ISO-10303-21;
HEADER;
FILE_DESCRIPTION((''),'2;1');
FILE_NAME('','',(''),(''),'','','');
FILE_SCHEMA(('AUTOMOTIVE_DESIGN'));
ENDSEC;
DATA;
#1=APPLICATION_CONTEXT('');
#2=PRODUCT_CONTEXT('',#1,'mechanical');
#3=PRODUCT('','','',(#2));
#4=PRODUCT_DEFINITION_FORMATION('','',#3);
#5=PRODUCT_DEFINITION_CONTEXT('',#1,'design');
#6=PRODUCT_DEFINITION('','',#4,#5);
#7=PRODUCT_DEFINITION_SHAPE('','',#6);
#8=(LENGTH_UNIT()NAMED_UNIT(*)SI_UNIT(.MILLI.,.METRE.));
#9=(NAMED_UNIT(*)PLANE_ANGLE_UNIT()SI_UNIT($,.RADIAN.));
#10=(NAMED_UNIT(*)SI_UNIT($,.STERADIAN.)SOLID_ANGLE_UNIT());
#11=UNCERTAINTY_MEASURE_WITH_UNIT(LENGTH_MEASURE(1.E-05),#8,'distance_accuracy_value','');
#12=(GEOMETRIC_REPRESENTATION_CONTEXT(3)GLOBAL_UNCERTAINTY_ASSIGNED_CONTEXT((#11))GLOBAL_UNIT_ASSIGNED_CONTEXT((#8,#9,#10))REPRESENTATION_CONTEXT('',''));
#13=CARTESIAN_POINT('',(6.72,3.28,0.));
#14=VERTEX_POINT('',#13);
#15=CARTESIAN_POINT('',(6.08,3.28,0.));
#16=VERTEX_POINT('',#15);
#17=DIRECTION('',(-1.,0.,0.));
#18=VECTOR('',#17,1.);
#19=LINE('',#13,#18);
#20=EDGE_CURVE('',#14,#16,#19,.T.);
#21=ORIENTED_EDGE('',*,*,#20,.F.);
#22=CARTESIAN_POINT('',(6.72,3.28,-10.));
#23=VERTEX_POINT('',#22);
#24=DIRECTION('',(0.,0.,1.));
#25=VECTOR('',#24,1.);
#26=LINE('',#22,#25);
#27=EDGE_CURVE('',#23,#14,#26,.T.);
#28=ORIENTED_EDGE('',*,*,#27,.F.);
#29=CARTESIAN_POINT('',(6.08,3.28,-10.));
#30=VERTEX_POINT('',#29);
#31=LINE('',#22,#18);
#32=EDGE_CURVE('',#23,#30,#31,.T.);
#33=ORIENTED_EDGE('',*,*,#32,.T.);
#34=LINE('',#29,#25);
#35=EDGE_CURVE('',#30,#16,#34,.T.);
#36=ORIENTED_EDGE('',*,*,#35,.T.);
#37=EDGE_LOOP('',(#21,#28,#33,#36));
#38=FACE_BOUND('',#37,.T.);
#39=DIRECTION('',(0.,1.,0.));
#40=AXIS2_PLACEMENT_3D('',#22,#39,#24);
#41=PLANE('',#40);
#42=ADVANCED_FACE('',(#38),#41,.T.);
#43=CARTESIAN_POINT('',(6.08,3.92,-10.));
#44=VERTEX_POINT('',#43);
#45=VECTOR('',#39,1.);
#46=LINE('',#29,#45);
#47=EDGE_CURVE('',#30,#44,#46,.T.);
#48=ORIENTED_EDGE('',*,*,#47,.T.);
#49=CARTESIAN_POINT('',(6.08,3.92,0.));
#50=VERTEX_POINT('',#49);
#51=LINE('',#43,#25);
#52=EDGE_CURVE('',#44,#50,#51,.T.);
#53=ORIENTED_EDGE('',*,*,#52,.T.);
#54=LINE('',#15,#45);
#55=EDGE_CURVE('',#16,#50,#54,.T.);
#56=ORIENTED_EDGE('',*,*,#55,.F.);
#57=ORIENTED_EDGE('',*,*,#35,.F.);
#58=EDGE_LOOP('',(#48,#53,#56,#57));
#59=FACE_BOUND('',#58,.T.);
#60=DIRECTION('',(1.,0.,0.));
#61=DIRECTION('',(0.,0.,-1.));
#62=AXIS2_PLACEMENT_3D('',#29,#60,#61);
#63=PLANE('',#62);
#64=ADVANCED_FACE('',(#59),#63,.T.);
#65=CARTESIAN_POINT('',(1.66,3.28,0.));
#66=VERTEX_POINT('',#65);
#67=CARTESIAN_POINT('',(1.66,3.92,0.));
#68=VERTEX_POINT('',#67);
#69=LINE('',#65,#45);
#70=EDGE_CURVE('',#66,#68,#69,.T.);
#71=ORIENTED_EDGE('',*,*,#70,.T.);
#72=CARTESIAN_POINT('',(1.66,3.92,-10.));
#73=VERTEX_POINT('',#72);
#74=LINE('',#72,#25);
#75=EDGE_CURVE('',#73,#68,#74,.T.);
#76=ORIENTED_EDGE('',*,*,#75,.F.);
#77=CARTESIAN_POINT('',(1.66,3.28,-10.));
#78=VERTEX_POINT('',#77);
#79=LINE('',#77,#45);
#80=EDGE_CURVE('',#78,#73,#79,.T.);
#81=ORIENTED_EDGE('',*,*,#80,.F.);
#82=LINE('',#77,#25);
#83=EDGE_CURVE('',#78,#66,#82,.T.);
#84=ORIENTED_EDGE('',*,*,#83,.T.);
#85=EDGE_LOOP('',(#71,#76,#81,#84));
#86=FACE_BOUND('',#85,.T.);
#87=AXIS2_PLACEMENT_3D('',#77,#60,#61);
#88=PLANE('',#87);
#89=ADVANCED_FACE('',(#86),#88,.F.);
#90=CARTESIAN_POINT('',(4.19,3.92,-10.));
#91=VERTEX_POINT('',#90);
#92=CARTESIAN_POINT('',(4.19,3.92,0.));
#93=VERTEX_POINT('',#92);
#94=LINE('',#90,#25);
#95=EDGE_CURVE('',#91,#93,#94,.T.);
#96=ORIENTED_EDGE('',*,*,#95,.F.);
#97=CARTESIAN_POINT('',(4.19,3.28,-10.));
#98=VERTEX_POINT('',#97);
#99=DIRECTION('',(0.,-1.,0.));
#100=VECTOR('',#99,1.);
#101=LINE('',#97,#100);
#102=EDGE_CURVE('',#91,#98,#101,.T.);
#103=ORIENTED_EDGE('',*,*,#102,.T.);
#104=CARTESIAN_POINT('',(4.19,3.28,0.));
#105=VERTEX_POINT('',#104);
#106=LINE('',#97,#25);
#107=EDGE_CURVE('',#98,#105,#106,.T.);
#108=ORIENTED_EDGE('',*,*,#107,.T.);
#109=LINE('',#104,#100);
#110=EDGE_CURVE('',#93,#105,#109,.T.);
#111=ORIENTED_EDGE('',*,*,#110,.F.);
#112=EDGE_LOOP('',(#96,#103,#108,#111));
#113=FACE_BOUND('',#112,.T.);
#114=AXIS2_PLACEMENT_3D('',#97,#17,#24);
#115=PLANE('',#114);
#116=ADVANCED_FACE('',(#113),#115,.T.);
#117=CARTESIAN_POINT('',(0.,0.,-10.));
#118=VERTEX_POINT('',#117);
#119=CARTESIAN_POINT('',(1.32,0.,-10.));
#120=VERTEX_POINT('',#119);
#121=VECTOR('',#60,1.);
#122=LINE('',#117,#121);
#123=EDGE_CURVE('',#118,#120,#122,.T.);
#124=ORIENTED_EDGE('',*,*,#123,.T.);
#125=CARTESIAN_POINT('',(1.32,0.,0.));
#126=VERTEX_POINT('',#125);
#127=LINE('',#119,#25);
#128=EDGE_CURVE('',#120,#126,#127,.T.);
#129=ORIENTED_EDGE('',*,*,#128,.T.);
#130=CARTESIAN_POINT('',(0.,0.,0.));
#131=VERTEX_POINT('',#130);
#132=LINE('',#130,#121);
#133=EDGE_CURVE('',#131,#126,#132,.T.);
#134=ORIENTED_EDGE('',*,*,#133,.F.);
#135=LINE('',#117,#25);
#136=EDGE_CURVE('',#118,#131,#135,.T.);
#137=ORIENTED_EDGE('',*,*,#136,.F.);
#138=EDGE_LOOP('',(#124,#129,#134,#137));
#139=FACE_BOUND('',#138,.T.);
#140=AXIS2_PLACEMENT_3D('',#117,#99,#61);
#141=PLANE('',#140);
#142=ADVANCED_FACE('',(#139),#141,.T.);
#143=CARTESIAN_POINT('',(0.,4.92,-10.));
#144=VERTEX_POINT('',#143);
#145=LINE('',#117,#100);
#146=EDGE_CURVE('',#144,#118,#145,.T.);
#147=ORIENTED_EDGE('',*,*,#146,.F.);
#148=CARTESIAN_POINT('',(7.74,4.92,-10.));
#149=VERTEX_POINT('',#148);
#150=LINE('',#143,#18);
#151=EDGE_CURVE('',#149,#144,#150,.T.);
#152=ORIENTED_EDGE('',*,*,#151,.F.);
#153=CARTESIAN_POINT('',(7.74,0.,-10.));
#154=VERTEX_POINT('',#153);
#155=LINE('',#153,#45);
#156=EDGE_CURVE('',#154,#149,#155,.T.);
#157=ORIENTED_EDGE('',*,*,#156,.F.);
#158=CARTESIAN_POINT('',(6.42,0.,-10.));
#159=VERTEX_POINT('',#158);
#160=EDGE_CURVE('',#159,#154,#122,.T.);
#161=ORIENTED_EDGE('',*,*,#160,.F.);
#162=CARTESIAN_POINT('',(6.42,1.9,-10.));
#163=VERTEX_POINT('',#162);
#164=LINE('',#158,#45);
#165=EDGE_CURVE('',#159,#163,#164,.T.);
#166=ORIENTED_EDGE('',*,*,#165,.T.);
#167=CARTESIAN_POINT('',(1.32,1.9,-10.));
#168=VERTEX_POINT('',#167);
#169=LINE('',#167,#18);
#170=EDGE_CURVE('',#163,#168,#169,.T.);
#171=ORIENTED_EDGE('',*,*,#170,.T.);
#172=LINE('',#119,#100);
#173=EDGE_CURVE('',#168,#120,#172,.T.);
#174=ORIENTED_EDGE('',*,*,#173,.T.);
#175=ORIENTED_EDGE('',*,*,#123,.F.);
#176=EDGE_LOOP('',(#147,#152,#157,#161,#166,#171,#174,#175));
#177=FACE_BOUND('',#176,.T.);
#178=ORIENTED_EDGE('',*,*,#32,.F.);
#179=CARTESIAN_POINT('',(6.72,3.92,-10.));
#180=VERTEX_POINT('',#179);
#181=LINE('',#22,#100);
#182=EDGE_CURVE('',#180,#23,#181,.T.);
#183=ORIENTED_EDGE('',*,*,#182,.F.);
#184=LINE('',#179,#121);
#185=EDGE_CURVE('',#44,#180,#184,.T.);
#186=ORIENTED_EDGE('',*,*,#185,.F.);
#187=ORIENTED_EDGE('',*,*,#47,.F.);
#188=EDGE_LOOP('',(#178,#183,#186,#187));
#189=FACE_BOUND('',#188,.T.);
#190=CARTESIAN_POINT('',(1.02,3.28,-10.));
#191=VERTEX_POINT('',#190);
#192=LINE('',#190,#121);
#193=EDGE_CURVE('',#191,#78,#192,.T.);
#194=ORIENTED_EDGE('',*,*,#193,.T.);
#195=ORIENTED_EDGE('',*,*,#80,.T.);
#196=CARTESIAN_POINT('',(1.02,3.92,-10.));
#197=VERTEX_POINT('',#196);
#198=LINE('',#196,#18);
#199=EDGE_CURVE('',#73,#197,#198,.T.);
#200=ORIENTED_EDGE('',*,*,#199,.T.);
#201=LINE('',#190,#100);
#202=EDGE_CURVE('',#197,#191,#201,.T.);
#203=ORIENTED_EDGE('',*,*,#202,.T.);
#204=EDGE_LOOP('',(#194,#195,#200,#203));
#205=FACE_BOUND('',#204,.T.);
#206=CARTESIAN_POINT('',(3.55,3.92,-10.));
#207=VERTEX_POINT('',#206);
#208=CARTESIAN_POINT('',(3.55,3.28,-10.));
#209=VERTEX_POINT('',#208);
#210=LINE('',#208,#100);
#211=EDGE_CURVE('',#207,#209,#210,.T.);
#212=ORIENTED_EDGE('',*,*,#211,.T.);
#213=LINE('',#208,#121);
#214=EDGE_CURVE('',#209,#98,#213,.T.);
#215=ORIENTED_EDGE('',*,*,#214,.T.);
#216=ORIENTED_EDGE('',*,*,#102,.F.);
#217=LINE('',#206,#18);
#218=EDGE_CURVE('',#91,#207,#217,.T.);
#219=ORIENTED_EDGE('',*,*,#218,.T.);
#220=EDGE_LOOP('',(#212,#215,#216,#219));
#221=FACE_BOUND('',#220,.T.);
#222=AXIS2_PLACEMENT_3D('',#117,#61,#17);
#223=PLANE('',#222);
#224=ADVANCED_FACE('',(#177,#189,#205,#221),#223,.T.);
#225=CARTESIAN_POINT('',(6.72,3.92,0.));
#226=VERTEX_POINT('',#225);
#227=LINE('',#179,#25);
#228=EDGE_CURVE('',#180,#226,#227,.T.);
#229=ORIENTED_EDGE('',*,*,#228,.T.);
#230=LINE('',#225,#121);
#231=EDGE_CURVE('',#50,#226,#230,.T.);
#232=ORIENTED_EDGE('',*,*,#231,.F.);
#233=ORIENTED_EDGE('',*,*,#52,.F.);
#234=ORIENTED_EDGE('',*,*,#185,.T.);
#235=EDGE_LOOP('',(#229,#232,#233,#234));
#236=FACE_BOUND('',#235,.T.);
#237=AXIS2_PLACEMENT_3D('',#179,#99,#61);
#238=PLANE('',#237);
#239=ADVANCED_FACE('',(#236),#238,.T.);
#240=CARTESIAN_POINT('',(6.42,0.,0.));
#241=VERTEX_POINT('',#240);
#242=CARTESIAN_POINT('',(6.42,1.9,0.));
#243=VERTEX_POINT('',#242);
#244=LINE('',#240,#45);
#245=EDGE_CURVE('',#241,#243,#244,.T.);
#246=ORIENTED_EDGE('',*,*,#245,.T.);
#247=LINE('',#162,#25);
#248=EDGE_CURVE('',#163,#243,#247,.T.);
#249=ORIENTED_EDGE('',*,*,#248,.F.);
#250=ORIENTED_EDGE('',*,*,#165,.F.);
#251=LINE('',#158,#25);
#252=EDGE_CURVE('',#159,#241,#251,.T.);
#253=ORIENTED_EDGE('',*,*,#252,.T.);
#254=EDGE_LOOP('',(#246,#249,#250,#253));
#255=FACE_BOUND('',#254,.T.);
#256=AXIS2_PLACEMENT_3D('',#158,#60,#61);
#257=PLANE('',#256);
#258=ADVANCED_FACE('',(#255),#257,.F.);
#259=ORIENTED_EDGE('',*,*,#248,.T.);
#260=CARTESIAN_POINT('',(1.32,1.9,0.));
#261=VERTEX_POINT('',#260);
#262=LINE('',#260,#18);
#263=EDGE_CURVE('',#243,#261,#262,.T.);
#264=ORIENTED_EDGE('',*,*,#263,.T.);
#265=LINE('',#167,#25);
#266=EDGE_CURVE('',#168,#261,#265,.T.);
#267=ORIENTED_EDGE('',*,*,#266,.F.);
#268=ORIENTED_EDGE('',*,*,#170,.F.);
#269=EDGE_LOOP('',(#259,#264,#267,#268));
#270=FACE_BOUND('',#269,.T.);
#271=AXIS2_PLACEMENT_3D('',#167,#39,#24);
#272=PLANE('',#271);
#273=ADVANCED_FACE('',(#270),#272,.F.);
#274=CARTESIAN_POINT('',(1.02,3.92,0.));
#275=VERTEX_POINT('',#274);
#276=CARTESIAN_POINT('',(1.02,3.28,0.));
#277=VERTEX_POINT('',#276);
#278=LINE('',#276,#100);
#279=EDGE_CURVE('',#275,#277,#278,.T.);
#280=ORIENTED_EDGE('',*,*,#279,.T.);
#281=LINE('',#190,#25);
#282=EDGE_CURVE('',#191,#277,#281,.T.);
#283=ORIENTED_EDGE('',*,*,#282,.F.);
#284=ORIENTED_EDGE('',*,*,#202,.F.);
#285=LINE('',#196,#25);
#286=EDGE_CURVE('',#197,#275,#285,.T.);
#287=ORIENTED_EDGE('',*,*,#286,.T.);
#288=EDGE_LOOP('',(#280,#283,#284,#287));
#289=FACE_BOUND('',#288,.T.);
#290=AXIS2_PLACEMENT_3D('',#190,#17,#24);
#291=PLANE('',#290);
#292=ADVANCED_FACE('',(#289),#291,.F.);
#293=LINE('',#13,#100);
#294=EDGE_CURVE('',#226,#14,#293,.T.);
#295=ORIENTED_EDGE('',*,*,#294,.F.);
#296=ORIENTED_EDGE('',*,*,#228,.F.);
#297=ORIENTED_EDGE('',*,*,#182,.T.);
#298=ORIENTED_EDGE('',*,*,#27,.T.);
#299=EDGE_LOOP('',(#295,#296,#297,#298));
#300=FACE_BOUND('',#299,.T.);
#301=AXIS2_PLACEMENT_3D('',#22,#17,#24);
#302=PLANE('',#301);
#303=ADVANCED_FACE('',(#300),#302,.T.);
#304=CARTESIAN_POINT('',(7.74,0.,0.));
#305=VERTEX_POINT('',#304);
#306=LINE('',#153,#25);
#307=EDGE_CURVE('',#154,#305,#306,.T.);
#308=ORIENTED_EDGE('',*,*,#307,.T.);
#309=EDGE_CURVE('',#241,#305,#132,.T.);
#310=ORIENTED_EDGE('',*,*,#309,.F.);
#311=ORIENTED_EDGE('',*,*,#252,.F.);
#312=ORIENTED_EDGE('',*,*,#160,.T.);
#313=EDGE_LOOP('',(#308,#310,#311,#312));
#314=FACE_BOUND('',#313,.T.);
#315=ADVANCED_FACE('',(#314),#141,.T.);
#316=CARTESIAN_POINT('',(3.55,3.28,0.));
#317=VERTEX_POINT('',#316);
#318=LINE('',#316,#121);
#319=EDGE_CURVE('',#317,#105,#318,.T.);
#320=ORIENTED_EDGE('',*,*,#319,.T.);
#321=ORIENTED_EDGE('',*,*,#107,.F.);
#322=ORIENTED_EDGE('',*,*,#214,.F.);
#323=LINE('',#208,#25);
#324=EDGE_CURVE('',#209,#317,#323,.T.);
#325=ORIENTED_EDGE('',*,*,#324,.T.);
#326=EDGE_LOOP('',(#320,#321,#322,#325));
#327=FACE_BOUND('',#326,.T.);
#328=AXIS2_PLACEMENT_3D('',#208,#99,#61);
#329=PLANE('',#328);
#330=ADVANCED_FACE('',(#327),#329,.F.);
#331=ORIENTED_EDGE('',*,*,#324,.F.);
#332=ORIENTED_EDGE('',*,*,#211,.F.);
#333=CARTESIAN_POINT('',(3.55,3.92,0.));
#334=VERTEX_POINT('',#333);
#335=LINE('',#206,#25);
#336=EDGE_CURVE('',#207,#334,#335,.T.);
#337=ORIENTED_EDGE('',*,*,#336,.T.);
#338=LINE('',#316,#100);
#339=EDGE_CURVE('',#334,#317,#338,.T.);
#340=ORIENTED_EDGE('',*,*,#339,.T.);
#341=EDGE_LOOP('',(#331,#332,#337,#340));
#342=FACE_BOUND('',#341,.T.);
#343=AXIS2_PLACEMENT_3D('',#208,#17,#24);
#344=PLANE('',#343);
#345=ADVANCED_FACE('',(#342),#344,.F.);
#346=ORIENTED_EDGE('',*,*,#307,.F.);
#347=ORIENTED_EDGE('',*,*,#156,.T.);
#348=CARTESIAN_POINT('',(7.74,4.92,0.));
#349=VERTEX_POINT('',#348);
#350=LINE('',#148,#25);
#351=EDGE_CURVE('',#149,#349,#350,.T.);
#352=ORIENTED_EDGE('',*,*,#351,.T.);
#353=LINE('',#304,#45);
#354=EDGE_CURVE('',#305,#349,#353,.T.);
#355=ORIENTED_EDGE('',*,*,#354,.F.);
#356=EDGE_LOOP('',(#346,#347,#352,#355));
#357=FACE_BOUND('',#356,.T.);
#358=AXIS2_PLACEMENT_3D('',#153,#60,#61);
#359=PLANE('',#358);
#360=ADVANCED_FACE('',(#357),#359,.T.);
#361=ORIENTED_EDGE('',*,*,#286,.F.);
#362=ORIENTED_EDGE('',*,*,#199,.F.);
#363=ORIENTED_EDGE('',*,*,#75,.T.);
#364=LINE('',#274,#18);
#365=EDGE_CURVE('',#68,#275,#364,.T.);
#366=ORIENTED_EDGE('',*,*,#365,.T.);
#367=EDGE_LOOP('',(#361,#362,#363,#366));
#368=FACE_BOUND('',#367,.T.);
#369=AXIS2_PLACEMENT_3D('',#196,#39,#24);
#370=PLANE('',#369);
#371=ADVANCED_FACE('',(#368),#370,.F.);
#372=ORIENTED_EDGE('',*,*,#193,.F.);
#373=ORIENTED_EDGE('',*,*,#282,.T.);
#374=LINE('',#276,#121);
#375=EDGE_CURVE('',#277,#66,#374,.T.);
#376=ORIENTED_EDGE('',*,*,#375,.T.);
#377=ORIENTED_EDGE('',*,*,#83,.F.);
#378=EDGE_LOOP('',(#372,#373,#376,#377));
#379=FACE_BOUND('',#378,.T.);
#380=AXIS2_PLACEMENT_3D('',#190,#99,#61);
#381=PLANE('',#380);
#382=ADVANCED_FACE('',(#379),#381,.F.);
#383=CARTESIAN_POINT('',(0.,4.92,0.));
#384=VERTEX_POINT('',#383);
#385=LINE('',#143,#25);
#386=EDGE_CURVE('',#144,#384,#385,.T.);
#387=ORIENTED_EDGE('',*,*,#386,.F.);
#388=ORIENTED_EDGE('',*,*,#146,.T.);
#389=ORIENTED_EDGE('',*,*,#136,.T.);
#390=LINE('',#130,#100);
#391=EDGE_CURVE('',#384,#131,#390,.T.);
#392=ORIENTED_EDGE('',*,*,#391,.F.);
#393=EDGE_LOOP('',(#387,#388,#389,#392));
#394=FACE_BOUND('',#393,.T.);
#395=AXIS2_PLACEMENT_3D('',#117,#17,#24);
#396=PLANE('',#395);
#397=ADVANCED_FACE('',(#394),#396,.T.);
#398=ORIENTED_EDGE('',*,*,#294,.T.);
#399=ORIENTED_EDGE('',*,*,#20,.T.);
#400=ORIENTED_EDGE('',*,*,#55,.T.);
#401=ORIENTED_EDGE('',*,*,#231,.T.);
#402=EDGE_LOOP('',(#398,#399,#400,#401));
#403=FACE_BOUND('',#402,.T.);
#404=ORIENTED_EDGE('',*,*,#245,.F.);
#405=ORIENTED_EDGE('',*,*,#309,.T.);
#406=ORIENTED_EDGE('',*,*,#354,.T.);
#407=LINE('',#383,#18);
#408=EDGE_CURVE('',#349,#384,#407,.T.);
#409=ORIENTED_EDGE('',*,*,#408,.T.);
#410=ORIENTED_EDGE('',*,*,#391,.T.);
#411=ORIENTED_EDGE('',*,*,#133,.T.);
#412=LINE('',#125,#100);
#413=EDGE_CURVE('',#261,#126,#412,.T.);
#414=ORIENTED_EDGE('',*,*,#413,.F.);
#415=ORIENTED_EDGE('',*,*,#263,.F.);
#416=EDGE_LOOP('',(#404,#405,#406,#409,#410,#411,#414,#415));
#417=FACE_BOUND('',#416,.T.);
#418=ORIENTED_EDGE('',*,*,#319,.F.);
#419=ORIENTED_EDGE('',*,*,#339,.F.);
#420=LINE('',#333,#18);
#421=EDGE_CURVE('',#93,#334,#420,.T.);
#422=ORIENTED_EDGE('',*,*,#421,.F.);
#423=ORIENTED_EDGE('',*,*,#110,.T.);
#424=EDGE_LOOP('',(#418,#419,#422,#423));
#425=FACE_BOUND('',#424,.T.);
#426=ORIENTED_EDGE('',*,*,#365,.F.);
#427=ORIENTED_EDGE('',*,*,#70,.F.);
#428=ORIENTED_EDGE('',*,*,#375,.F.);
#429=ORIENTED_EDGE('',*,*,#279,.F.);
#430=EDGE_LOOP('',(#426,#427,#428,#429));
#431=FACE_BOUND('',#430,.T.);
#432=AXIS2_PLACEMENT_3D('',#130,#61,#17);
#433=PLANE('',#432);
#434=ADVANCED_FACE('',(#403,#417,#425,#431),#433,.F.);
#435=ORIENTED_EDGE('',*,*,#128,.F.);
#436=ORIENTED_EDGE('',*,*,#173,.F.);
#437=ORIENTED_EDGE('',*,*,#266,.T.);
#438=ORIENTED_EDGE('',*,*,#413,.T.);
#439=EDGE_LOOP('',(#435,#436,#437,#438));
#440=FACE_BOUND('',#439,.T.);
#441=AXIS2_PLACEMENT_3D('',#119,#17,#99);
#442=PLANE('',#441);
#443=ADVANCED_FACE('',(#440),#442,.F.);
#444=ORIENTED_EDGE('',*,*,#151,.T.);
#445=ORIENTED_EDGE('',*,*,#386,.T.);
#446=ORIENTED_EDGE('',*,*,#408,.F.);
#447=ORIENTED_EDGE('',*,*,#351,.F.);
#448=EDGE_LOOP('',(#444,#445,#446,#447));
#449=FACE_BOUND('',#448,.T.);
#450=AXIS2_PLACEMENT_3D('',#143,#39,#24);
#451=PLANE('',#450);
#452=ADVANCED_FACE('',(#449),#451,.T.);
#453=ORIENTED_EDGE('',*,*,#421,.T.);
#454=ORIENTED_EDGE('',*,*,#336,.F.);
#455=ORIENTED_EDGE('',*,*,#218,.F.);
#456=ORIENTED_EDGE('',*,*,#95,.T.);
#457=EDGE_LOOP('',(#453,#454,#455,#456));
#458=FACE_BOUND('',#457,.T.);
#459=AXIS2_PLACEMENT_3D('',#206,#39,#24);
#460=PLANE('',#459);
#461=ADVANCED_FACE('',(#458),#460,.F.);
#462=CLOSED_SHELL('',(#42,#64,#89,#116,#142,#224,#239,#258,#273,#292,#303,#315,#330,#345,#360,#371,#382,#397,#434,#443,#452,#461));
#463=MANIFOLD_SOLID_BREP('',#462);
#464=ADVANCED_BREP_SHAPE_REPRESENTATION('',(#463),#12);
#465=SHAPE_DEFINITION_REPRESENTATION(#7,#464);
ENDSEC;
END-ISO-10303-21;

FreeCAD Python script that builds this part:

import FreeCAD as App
import Part
import Sketcher
from FreeCAD import Vector
Q = App.Units.Quantity

doc = App.newDocument("Part")
body = doc.addObject("PartDesign::Body", "Body")

sketch1 = doc.addObject("Sketcher::SketchObject", "Sketch")
body.addObject(sketch1)
sketch1.AttachmentSupport = (doc.XY_Plane, [""])
sketch1.MapMode = "FlatFace"
sketch1.addGeometry([
    Part.LineSegment(Vector(0, 4.92, 0), Vector(0, 0, 0)),
    Part.LineSegment(Vector(0, 0, 0), Vector(7.74, 0, 0)),
    Part.LineSegment(Vector(7.74, 0, 0), Vector(7.74, 4.92, 0)),
    Part.LineSegment(Vector(7.74, 4.92, 0), Vector(0, 4.92, 0)),
], False)
sketch1.addConstraint([
    Sketcher.Constraint("Coincident", 0, 2, 1, 1),
    Sketcher.Constraint("Coincident", 1, 2, 2, 1),
    Sketcher.Constraint("Coincident", 2, 2, 3, 1),
    Sketcher.Constraint("Coincident", 3, 2, 0, 1),
    Sketcher.Constraint("Vertical", 0),
    Sketcher.Constraint("Horizontal", 1),
    Sketcher.Constraint("Vertical", 2),
    Sketcher.Constraint("Horizontal", 3),
    Sketcher.Constraint("Coincident", 0, 2, -1, 1),
    Sketcher.Constraint("DistanceX", 1, 1, 1, 2, Q("7.74 mm")),
    Sketcher.Constraint("DistanceY", 0, 2, 0, 1, Q("4.92 mm")),
])
pad1 = doc.addObject("PartDesign::Pad", "Pad")
body.addObject(pad1)
pad1.Profile = sketch1
pad1.Length = 10
pad1.Reversed = True

sketch2 = doc.addObject("Sketcher::SketchObject", "Sketch001")
body.addObject(sketch2)
sketch2.AttachmentSupport = (doc.XY_Plane, [""])
sketch2.MapMode = "FlatFace"
sketch2.addGeometry([
    Part.LineSegment(Vector(1.32, 1.9, 0), Vector(1.32, 0, 0)),
    Part.LineSegment(Vector(1.32, 0, 0), Vector(6.42, 0, 0)),
    Part.LineSegment(Vector(6.42, 0, 0), Vector(6.42, 1.9, 0)),
    Part.LineSegment(Vector(6.42, 1.9, 0), Vector(1.32, 1.9, 0)),
], False)
sketch2.addConstraint([
    Sketcher.Constraint("Coincident", 0, 2, 1, 1),
    Sketcher.Constraint("Coincident", 1, 2, 2, 1),
    Sketcher.Constraint("Coincident", 2, 2, 3, 1),
    Sketcher.Constraint("Coincident", 3, 2, 0, 1),
    Sketcher.Constraint("Vertical", 0),
    Sketcher.Constraint("Horizontal", 1),
    Sketcher.Constraint("Vertical", 2),
    Sketcher.Constraint("Horizontal", 3),
    Sketcher.Constraint("PointOnObject", 0, 2, -1),
    Sketcher.Constraint("DistanceX", 1, 1, 1, 2, Q("5.1 mm")),
    Sketcher.Constraint("DistanceY", 0, 2, 0, 1, Q("1.9 mm")),
    Sketcher.Constraint("DistanceX", -1, 1, 0, 2, Q("1.32 mm")),
])
pocket1 = doc.addObject("PartDesign::Pocket", "Pocket")
body.addObject(pocket1)
pocket1.Profile = sketch2
pocket1.Type = "ThroughAll"

sketch3 = doc.addObject("Sketcher::SketchObject", "Sketch002")
body.addObject(sketch3)
sketch3.AttachmentSupport = (doc.XY_Plane, [""])
sketch3.MapMode = "FlatFace"
sketch3.addGeometry([
    Part.LineSegment(Vector(3.55, 3.92, 0), Vector(3.55, 3.28, 0)),
    Part.LineSegment(Vector(3.55, 3.28, 0), Vector(3.87, 3.28, 0)),
    Part.LineSegment(Vector(3.87, 3.28, 0), Vector(3.87, 3.92, 0)),
    Part.LineSegment(Vector(3.87, 3.92, 0), Vector(3.55, 3.92, 0)),
    Part.LineSegment(Vector(1.02, 3.92, 0), Vector(1.02, 3.28, 0)),
    Part.LineSegment(Vector(1.02, 3.28, 0), Vector(1.66, 3.28, 0)),
    Part.LineSegment(Vector(1.66, 3.28, 0), Vector(1.66, 3.92, 0)),
    Part.LineSegment(Vector(1.66, 3.92, 0), Vector(1.02, 3.92, 0)),
], False)
sketch3.addConstraint([
    Sketcher.Constraint("Coincident", 0, 2, 1, 1),
    Sketcher.Constraint("Coincident", 1, 2, 2, 1),
    Sketcher.Constraint("Coincident", 2, 2, 3, 1),
    Sketcher.Constraint("Coincident", 3, 2, 0, 1),
    Sketcher.Constraint("Coincident", 4, 2, 5, 1),
    Sketcher.Constraint("Coincident", 5, 2, 6, 1),
    Sketcher.Constraint("Coincident", 6, 2, 7, 1),
    Sketcher.Constraint("Coincident", 7, 2, 4, 1),
    Sketcher.Constraint("Vertical", 0),
    Sketcher.Constraint("Horizontal", 1),
    Sketcher.Constraint("Vertical", 2),
    Sketcher.Constraint("Horizontal", 3),
    Sketcher.Constraint("Vertical", 4),
    Sketcher.Constraint("Horizontal", 5),
    Sketcher.Constraint("Vertical", 6),
    Sketcher.Constraint("Horizontal", 7),
    Sketcher.Constraint("Horizontal", 1, 2, 4, 2),
    Sketcher.Constraint("Horizontal", 3, 2, 6, 2),
    Sketcher.Constraint("Equal", 7, 0),
    Sketcher.Constraint("DistanceX", 1, 1, 1, 2, Q("0.32 mm")),
    Sketcher.Constraint("DistanceX", 5, 1, 5, 2, Q("0.64 mm")),
    Sketcher.Constraint("DistanceX", -1, 1, 0, 2, Q("3.55 mm")),
    Sketcher.Constraint("DistanceY", -1, 1, 0, 2, Q("3.28 mm")),
    Sketcher.Constraint("DistanceX", -1, 1, 4, 2, Q("1.02 mm")),
])
pocket2 = doc.addObject("PartDesign::Pocket", "Pocket001")
body.addObject(pocket2)
pocket2.Profile = sketch3
pocket2.Type = "ThroughAll"
doc.recompute()

datumplane = doc.addObject("PartDesign::Plane", "DatumPlane")
body.addObject(datumplane)
datumplane.AttachmentSupport = (doc.YZ_Plane, [""])
datumplane.MapMode = "FlatFace"
datumplane.AttachmentOffset = App.Placement(Vector(0, 0, 3.87), App.Rotation())
mirrored = doc.addObject("PartDesign::Mirrored", "Mirrored")
body.addObject(mirrored)
mirrored.Originals = [pocket2]
mirrored.MirrorPlane = (datumplane, [""])
body.Tip = mirrored

doc.recompute()
